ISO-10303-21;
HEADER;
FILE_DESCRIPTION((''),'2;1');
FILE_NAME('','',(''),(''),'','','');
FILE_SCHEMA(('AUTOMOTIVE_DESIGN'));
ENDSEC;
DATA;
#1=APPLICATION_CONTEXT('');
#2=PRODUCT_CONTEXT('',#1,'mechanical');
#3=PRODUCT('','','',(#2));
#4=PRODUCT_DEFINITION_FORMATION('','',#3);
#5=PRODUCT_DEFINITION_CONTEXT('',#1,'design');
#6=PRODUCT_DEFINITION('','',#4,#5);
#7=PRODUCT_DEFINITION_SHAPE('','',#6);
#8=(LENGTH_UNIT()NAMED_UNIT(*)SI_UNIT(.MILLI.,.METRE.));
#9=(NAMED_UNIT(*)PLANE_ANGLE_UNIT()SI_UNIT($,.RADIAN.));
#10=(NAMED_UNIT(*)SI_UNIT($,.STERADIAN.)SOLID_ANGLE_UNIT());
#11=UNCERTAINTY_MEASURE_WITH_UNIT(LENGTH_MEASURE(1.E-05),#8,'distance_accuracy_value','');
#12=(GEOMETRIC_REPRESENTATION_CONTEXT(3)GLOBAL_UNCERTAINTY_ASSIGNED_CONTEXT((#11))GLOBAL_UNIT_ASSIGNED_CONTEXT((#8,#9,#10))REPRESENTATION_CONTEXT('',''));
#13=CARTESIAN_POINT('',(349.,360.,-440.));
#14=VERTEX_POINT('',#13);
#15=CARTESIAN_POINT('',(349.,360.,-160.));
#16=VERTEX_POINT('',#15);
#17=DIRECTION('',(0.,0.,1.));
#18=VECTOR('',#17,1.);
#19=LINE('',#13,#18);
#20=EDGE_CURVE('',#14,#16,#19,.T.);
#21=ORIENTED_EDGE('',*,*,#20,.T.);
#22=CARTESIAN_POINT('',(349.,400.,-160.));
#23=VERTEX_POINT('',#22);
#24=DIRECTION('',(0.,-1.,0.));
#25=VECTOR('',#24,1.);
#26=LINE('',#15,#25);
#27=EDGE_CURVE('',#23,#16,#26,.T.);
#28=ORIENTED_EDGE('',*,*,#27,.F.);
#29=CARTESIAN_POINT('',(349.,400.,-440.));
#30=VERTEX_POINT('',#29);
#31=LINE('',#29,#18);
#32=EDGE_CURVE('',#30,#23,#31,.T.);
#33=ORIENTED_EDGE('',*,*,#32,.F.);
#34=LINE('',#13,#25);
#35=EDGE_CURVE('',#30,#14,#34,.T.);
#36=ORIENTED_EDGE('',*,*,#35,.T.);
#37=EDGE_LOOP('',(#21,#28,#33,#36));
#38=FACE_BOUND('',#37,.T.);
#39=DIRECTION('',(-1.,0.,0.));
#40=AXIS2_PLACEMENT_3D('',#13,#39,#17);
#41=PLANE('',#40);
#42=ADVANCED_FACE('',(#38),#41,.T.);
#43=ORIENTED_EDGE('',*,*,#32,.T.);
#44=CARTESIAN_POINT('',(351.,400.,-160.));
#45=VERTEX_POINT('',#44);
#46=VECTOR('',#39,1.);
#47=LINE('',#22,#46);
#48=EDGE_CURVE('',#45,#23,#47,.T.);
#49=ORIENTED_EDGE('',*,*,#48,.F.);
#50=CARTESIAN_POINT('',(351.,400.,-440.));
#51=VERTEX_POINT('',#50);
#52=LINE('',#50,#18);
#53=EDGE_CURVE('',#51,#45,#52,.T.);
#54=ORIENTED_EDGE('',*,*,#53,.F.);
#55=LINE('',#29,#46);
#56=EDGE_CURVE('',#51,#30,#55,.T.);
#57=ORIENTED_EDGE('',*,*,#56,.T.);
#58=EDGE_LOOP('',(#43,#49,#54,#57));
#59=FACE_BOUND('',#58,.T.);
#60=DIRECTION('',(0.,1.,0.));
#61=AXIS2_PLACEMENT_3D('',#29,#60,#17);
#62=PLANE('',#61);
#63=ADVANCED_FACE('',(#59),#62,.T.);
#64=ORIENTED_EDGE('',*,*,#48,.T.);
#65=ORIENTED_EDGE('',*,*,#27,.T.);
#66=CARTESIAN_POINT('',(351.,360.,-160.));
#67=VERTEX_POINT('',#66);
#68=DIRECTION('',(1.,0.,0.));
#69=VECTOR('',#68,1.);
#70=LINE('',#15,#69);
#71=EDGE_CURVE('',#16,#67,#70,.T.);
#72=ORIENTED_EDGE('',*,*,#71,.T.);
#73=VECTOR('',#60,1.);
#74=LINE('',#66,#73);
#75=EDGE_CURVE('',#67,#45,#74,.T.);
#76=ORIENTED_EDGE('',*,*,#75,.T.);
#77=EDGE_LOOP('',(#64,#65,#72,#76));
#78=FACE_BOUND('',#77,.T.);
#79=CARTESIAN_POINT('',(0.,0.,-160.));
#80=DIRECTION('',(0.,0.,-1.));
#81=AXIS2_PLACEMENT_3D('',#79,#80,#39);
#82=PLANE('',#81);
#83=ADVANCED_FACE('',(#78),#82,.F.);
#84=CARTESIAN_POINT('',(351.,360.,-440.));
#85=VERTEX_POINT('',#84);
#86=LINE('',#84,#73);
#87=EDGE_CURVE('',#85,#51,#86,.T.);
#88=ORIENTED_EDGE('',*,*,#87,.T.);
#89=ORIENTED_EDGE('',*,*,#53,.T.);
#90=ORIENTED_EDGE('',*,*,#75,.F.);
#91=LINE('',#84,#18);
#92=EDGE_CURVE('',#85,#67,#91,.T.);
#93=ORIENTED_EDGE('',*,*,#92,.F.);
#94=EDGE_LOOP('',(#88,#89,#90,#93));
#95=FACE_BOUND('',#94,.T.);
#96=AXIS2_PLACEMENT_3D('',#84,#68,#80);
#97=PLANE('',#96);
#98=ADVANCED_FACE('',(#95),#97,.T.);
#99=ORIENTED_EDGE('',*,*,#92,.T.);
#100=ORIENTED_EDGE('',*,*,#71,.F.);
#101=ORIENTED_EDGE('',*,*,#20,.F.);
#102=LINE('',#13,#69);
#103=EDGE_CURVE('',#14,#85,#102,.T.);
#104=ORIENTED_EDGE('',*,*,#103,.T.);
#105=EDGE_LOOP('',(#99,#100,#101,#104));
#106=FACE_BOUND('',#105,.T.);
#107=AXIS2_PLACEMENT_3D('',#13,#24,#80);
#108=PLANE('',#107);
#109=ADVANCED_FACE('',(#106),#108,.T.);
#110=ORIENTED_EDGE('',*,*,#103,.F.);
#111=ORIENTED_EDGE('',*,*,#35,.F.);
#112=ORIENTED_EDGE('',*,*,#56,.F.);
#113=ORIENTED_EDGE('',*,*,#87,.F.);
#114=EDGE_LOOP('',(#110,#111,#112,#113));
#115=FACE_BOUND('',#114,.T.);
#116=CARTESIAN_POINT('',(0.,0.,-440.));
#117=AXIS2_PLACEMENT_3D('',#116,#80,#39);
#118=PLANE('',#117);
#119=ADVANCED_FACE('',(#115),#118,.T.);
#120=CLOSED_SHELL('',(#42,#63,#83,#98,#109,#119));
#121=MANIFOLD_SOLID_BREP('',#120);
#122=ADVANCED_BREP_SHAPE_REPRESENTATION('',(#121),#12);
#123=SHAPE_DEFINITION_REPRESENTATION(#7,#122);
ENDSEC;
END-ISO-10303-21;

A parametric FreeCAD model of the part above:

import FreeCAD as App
import Part
import Sketcher

V = App.Vector
Q = App.Units.Quantity


def add_polygon(sketch, points):
    """Adds a closed chain of lines whose ends are joined by coincident constraints."""
    first, n = sketch.GeometryCount, len(points)
    for a, b in zip(points, points[1:] + points[:1]):
        sketch.addGeometry(Part.LineSegment(App.Vector(*a, 0), App.Vector(*b, 0)), False)
    for i in range(n):
        sketch.addConstraint(Sketcher.Constraint("Coincident", first + i, 2, first + (i + 1) % n, 1))

doc = App.newDocument("Part")
body = doc.addObject("PartDesign::Body", "Body")

# Sketch on XY plane
sketch1 = body.newObject("Sketcher::SketchObject", "Sketch")
sketch1.AttachmentSupport = (doc.getObject("XY_Plane"), [""])
sketch1.MapMode = "FlatFace"
sketch1.AttachmentOffset = App.Placement(V(0, 0, -160), App.Rotation())
add_polygon(sketch1, [(349, 400), (349, 360), (351, 360), (351, 400)])  # lines 0-3
sketch1.addConstraint(Sketcher.Constraint("Vertical", 0))
sketch1.addConstraint(Sketcher.Constraint("Horizontal", 1))
sketch1.addConstraint(Sketcher.Constraint("Vertical", 2))
sketch1.addConstraint(Sketcher.Constraint("Horizontal", 3))
sketch1.addConstraint(Sketcher.Constraint("DistanceX", 1, 1, 1, 2, Q("2 mm")))
sketch1.addConstraint(Sketcher.Constraint("DistanceY", 0, 2, 0, 1, Q("40 mm")))
sketch1.addConstraint(Sketcher.Constraint("DistanceX", -1, 1, 0, 2, Q("349 mm")))
sketch1.addConstraint(Sketcher.Constraint("DistanceY", -1, 1, 0, 2, Q("360 mm")))
pad1 = body.newObject("PartDesign::Pad", "Pad")
pad1.Profile = sketch1
pad1.Length = 280
pad1.Reversed = True

doc.recompute()
